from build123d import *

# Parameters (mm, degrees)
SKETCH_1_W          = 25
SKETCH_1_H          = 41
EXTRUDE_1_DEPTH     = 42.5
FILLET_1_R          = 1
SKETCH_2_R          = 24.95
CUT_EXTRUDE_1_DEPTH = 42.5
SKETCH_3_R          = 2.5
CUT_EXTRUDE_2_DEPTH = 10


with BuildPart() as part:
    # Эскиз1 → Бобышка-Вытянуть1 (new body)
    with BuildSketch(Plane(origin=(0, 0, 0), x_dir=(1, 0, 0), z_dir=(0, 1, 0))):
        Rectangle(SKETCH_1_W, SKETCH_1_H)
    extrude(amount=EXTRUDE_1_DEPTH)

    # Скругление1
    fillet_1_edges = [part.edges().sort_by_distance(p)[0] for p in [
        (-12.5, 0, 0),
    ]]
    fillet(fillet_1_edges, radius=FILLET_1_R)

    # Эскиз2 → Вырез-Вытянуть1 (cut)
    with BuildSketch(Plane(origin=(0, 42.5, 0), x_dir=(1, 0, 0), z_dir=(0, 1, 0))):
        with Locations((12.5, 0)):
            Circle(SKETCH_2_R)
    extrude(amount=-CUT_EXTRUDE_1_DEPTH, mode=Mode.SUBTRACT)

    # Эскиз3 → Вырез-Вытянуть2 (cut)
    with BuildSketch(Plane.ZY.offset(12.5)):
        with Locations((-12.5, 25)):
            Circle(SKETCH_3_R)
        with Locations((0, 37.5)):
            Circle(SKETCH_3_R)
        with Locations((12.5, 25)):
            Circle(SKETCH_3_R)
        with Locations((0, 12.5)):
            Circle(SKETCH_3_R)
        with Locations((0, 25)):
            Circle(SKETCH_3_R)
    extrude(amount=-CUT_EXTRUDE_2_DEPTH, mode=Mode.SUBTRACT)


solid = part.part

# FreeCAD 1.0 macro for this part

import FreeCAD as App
import Part
import Sketcher

V = App.Vector


def edges_at(feature, points):
    """Names of the edges that pass closest to the given points."""
    edges = feature.Shape.Edges
    near = lambda p: min(range(len(edges)), key=lambda i: edges[i].distToShape(Part.Vertex(*p))[0])
    return sorted({f"Edge{near(p) + 1}" for p in points})


def add_polygon(sketch, points):
    """Adds a closed chain of lines whose ends are joined by coincident constraints."""
    first, n = sketch.GeometryCount, len(points)
    for a, b in zip(points, points[1:] + points[:1]):
        sketch.addGeometry(Part.LineSegment(App.Vector(*a, 0), App.Vector(*b, 0)), False)
    for i in range(n):
        sketch.addConstraint(Sketcher.Constraint("Coincident", first + i, 2, first + (i + 1) % n, 1))

doc = App.newDocument("Part")
body = doc.addObject("PartDesign::Body", "Body")

# Sketch on XZ plane
sketch1 = doc.addObject("Sketcher::SketchObject", "Sketch")
body.addObject(sketch1)
sketch1.AttachmentSupport = (doc.XZ_Plane, [""])
sketch1.MapMode = "FlatFace"
add_polygon(sketch1, [(-12, -20), (-12, 20), (12, 20), (12, -20)])  # lines 0-3
sketch1.addConstraint([
    Sketcher.Constraint("Vertical", 0),
    Sketcher.Constraint("Horizontal", 1),
    Sketcher.Constraint("Vertical", 2),
    Sketcher.Constraint("Horizontal", 3),
    Sketcher.Constraint("Symmetric", 0, 2, 2, 2, -1, 1),
    Sketcher.Constraint("DistanceX", 1, 1, 1, 2, 25.0),
    Sketcher.Constraint("DistanceY", 0, 1, 0, 2, 41.0),
])
pad1 = doc.addObject("PartDesign::Pad", "Pad")
body.addObject(pad1)
pad1.Profile = sketch1
pad1.Length = 42.5
pad1.Reversed = True
doc.recompute()

fillet = doc.addObject("PartDesign::Fillet", "Fillet")
body.addObject(fillet)
fillet.Base = (pad1, edges_at(pad1, [(-12.5, 0, 0)]))
fillet.Radius = 1

# Sketch on XZ plane
sketch2 = doc.addObject("Sketcher::SketchObject", "Sketch001")
body.addObject(sketch2)
sketch2.AttachmentSupport = (doc.XZ_Plane, [""])
sketch2.MapMode = "FlatFace"
sketch2.AttachmentOffset = App.Placement(V(0, 0, -42.5), App.Rotation())
sketch2.addGeometry(Part.Circle(V(12, 0, 0), V(0, 0, 1), 25), False)
sketch2.addConstraint([
    Sketcher.Constraint("PointOnObject", 0, 3, -1),
    Sketcher.Constraint("Diameter", 0, 49.9),
    Sketcher.Constraint("DistanceX", -1, 1, 0, 3, 12.5),
])
pocket1 = doc.addObject("PartDesign::Pocket", "Pocket")
body.addObject(pocket1)
pocket1.Profile = sketch2
pocket1.Length = 42.5
pocket1.Reversed = True

# Sketch on YZ plane
sketch3 = doc.addObject("Sketcher::SketchObject", "Sketch002")
body.addObject(sketch3)
sketch3.AttachmentSupport = (doc.YZ_Plane, [""])
sketch3.MapMode = "FlatFace"
sketch3.AttachmentOffset = App.Placement(V(0, 0, -12.5), App.Rotation())
sketch3.addGeometry([
    Part.Circle(V(25, -12.5, 0), V(0, 0, 1), 2.5),  # 0
    Part.Circle(V(37.5, 0, 0), V(0, 0, 1), 2.5),  # 1
    Part.Circle(V(25, 12.5, 0), V(0, 0, 1), 2.5),  # 2
    Part.Circle(V(12.5, 0, 0), V(0, 0, 1), 2.5),  # 3
    Part.Circle(V(25, 0, 0), V(0, 0, 1), 2.5),  # 4
], False)
sketch3.addConstraint([
    Sketcher.Constraint("Equal", 0, 1),
    Sketcher.Constraint("Equal", 1, 2),
    Sketcher.Constraint("Equal", 2, 3),
    Sketcher.Constraint("Equal", 3, 4),
    Sketcher.Constraint("Symmetric", 0, 3, 2, 3, -1),
    Sketcher.Constraint("PointOnObject", 1, 3, -1),
    Sketcher.Constraint("PointOnObject", 3, 3, -1),
    Sketcher.Constraint("PointOnObject", 4, 3, -1),
    Sketcher.Constraint("Vertical", 2, 3, 4, 3),
    Sketcher.Constraint("Diameter", 0, 5.0),
    Sketcher.Constraint("DistanceX", -1, 1, 0, 3, 25.0),
    Sketcher.Constraint("DistanceY", 0, 3, 2, 3, 25.0),
    Sketcher.Constraint("DistanceX", 3, 3, 1, 3, 25.0),
    Sketcher.Constraint("DistanceX", -1, 1, 1, 3, 37.5),
])
pocket2 = doc.addObject("PartDesign::Pocket", "Pocket001")
body.addObject(pocket2)
pocket2.Profile = sketch3
pocket2.Length = 10
pocket2.Reversed = True

doc.recompute()
